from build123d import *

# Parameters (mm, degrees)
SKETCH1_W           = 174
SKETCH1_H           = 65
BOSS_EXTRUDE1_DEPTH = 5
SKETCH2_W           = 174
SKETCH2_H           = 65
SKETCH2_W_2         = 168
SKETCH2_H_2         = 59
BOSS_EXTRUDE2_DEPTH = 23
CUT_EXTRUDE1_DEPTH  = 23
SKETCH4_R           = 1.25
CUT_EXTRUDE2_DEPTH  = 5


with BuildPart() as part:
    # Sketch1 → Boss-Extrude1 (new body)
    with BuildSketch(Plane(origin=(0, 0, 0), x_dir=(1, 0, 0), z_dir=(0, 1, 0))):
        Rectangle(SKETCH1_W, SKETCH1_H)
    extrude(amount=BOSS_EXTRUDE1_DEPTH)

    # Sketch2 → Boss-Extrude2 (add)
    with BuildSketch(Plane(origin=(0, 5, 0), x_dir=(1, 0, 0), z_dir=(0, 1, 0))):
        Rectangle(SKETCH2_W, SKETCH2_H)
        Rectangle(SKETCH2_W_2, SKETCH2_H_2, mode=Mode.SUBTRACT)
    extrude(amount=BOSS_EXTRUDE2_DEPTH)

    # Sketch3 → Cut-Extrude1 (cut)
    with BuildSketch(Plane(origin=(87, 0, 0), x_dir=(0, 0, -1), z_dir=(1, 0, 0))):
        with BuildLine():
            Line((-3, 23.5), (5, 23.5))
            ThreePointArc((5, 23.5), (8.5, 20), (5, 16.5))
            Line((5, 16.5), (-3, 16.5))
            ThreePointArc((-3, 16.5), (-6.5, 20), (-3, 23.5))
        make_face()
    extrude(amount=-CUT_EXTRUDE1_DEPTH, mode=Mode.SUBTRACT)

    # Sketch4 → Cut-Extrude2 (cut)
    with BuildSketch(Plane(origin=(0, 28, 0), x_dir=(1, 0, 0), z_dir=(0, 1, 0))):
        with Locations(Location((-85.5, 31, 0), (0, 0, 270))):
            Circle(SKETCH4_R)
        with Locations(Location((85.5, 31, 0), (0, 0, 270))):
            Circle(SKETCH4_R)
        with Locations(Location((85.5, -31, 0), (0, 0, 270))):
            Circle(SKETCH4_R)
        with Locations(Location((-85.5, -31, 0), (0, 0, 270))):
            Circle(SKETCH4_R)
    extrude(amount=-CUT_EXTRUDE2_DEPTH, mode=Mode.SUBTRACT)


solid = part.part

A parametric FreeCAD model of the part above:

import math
import FreeCAD as App
import Part
import Sketcher

V = App.Vector
Q = App.Units.Quantity

doc = App.newDocument("Part")
body = doc.addObject("PartDesign::Body", "Body")

# Sketch on XZ plane
sketch1 = doc.addObject("Sketcher::SketchObject", "Sketch")
body.addObject(sketch1)
sketch1.AttachmentSupport = (doc.XZ_Plane, [""])
sketch1.MapMode = "FlatFace"
sketch1.addGeometry(Part.LineSegment(V(-87, -32.5, 0), V(-87, 32.5, 0)), False)
sketch1.addGeometry(Part.LineSegment(V(-87, 32.5, 0), V(87, 32.5, 0)), False)
sketch1.addGeometry(Part.LineSegment(V(87, 32.5, 0), V(87, -32.5, 0)), False)
sketch1.addGeometry(Part.LineSegment(V(87, -32.5, 0), V(-87, -32.5, 0)), False)
sketch1.addConstraint(Sketcher.Constraint("Coincident", 0, 2, 1, 1))
sketch1.addConstraint(Sketcher.Constraint("Coincident", 1, 2, 2, 1))
sketch1.addConstraint(Sketcher.Constraint("Coincident", 2, 2, 3, 1))
sketch1.addConstraint(Sketcher.Constraint("Coincident", 3, 2, 0, 1))
sketch1.addConstraint(Sketcher.Constraint("Vertical", 0))
sketch1.addConstraint(Sketcher.Constraint("Horizontal", 1))
sketch1.addConstraint(Sketcher.Constraint("Vertical", 2))
sketch1.addConstraint(Sketcher.Constraint("Horizontal", 3))
sketch1.addConstraint(Sketcher.Constraint("Symmetric", 0, 2, 2, 2, -1, 1))
sketch1.addConstraint(Sketcher.Constraint("DistanceX", 1, 1, 1, 2, Q("174 mm")))
sketch1.addConstraint(Sketcher.Constraint("DistanceY", 0, 1, 0, 2, Q("65 mm")))
pad1 = doc.addObject("PartDesign::Pad", "Pad")
body.addObject(pad1)
pad1.Profile = sketch1
pad1.Length = 5
pad1.Reversed = True

# Sketch on XZ plane
sketch2 = doc.addObject("Sketcher::SketchObject", "Sketch001")
body.addObject(sketch2)
sketch2.AttachmentSupport = (doc.XZ_Plane, [""])
sketch2.MapMode = "FlatFace"
sketch2.AttachmentOffset = App.Placement(V(0, 0, -5), App.Rotation())
sketch2.addGeometry(Part.LineSegment(V(-87, -32.5, 0), V(-87, 32.5, 0)), False)
sketch2.addGeometry(Part.LineSegment(V(-87, 32.5, 0), V(87, 32.5, 0)), False)
sketch2.addGeometry(Part.LineSegment(V(87, 32.5, 0), V(87, -32.5, 0)), False)
sketch2.addGeometry(Part.LineSegment(V(87, -32.5, 0), V(-87, -32.5, 0)), False)
sketch2.addGeometry(Part.LineSegment(V(84, 29.5, 0), V(-84, 29.5, 0)), False)
sketch2.addGeometry(Part.LineSegment(V(-84, 29.5, 0), V(-84, -29.5, 0)), False)
sketch2.addGeometry(Part.LineSegment(V(-84, -29.5, 0), V(84, -29.5, 0)), False)
sketch2.addGeometry(Part.LineSegment(V(84, -29.5, 0), V(84, 29.5, 0)), False)
sketch2.addConstraint(Sketcher.Constraint("Coincident", 0, 2, 1, 1))
sketch2.addConstraint(Sketcher.Constraint("Coincident", 1, 2, 2, 1))
sketch2.addConstraint(Sketcher.Constraint("Coincident", 2, 2, 3, 1))
sketch2.addConstraint(Sketcher.Constraint("Coincident", 3, 2, 0, 1))
sketch2.addConstraint(Sketcher.Constraint("Coincident", 4, 2, 5, 1))
sketch2.addConstraint(Sketcher.Constraint("Coincident", 5, 2, 6, 1))
sketch2.addConstraint(Sketcher.Constraint("Coincident", 6, 2, 7, 1))
sketch2.addConstraint(Sketcher.Constraint("Coincident", 7, 2, 4, 1))
sketch2.addConstraint(Sketcher.Constraint("Vertical", 0))
sketch2.addConstraint(Sketcher.Constraint("Horizontal", 1))
sketch2.addConstraint(Sketcher.Constraint("Vertical", 2))
sketch2.addConstraint(Sketcher.Constraint("Horizontal", 3))
sketch2.addConstraint(Sketcher.Constraint("Horizontal", 4))
sketch2.addConstraint(Sketcher.Constraint("Vertical", 5))
sketch2.addConstraint(Sketcher.Constraint("Horizontal", 6))
sketch2.addConstraint(Sketcher.Constraint("Vertical", 7))
sketch2.addConstraint(Sketcher.Constraint("Symmetric", 0, 2, 2, 2, -1, 1))
sketch2.addConstraint(Sketcher.Constraint("Symmetric", 4, 2, 6, 2, -1, 1))
sketch2.addConstraint(Sketcher.Constraint("DistanceX", 1, 1, 1, 2, Q("174 mm")))
sketch2.addConstraint(Sketcher.Constraint("DistanceX", 4, 2, 4, 1, Q("168 mm")))
sketch2.addConstraint(Sketcher.Constraint("DistanceY", 0, 1, 0, 2, Q("65 mm")))
sketch2.addConstraint(Sketcher.Constraint("DistanceY", 5, 2, 5, 1, Q("59 mm")))
pad2 = doc.addObject("PartDesign::Pad", "Pad001")
body.addObject(pad2)
pad2.Profile = sketch2
pad2.Length = 23
pad2.Reversed = True

# Sketch on YZ plane
sketch3 = doc.addObject("Sketcher::SketchObject", "Sketch002")
body.addObject(sketch3)
sketch3.AttachmentSupport = (doc.YZ_Plane, [""])
sketch3.MapMode = "FlatFace"
sketch3.AttachmentOffset = App.Placement(V(0, 0, 87), App.Rotation())
sketch3.addGeometry(Part.LineSegment(V(23.5, -5, 0), V(23.5, 3, 0)), False)
sketch3.addGeometry(Part.ArcOfCircle(Part.Circle(V(20, 3, 0), V(0, 0, 1), 3.5), math.radians(0), math.radians(180)), False)
sketch3.addGeometry(Part.LineSegment(V(16.5, 3, 0), V(16.5, -5, 0)), False)
sketch3.addGeometry(Part.ArcOfCircle(Part.Circle(V(20, -5, 0), V(0, 0, 1), 3.5), math.radians(180), math.radians(360)), False)
sketch3.addConstraint(Sketcher.Constraint("Tangent", 0, 2, 1, 1))
sketch3.addConstraint(Sketcher.Constraint("Tangent", 1, 2, 2, 1))
sketch3.addConstraint(Sketcher.Constraint("Tangent", 2, 2, 3, 1))
sketch3.addConstraint(Sketcher.Constraint("Tangent", 3, 2, 0, 1))
sketch3.addConstraint(Sketcher.Constraint("Vertical", 0))
sketch3.addConstraint(Sketcher.Constraint("Vertical", 2))
sketch3.addConstraint(Sketcher.Constraint("Radius", 1, Q("3.5 mm")))
sketch3.addConstraint(Sketcher.Constraint("DistanceY", 0, 1, 0, 2, Q("8 mm")))
sketch3.addConstraint(Sketcher.Constraint("DistanceX", -1, 1, 1, 3, Q("20 mm")))
sketch3.addConstraint(Sketcher.Constraint("DistanceY", -1, 1, 1, 3, Q("3 mm")))
pocket1 = doc.addObject("PartDesign::Pocket", "Pocket")
body.addObject(pocket1)
pocket1.Profile = sketch3
pocket1.Length = 23

# Sketch on XZ plane
sketch4 = doc.addObject("Sketcher::SketchObject", "Sketch003")
body.addObject(sketch4)
sketch4.AttachmentSupport = (doc.XZ_Plane, [""])
sketch4.MapMode = "FlatFace"
sketch4.AttachmentOffset = App.Placement(V(0, 0, -28), App.Rotation())
sketch4.addGeometry(Part.Circle(V(-85.5, -31, 0), V(0, 0, 1), 1.25), False)
sketch4.addGeometry(Part.Circle(V(85.5, -31, 0), V(0, 0, 1), 1.25), False)
sketch4.addGeometry(Part.Circle(V(85.5, 31, 0), V(0, 0, 1), 1.25), False)
sketch4.addGeometry(Part.Circle(V(-85.5, 31, 0), V(0, 0, 1), 1.25), False)
sketch4.addConstraint(Sketcher.Constraint("Equal", 0, 1))
sketch4.addConstraint(Sketcher.Constraint("Equal", 1, 2))
sketch4.addConstraint(Sketcher.Constraint("Equal", 2, 3))
sketch4.addConstraint(Sketcher.Constraint("Symmetric", 0, 3, 2, 3, -1, 1))
sketch4.addConstraint(Sketcher.Constraint("Symmetric", 1, 3, 3, 3, -1, 1))
sketch4.addConstraint(Sketcher.Constraint("Symmetric", 0, 3, 1, 3, -2))
sketch4.addConstraint(Sketcher.Constraint("Diameter", 0, Q("2.5 mm")))
sketch4.addConstraint(Sketcher.Constraint("DistanceY", 0, 3, -1, 1, Q("31 mm")))
sketch4.addConstraint(Sketcher.Constraint("DistanceX", 0, 3, 1, 3, Q("171 mm")))
pocket2 = doc.addObject("PartDesign::Pocket", "Pocket001")
body.addObject(pocket2)
pocket2.Profile = sketch4
pocket2.Length = 5
pocket2.Reversed = True

doc.recompute()
